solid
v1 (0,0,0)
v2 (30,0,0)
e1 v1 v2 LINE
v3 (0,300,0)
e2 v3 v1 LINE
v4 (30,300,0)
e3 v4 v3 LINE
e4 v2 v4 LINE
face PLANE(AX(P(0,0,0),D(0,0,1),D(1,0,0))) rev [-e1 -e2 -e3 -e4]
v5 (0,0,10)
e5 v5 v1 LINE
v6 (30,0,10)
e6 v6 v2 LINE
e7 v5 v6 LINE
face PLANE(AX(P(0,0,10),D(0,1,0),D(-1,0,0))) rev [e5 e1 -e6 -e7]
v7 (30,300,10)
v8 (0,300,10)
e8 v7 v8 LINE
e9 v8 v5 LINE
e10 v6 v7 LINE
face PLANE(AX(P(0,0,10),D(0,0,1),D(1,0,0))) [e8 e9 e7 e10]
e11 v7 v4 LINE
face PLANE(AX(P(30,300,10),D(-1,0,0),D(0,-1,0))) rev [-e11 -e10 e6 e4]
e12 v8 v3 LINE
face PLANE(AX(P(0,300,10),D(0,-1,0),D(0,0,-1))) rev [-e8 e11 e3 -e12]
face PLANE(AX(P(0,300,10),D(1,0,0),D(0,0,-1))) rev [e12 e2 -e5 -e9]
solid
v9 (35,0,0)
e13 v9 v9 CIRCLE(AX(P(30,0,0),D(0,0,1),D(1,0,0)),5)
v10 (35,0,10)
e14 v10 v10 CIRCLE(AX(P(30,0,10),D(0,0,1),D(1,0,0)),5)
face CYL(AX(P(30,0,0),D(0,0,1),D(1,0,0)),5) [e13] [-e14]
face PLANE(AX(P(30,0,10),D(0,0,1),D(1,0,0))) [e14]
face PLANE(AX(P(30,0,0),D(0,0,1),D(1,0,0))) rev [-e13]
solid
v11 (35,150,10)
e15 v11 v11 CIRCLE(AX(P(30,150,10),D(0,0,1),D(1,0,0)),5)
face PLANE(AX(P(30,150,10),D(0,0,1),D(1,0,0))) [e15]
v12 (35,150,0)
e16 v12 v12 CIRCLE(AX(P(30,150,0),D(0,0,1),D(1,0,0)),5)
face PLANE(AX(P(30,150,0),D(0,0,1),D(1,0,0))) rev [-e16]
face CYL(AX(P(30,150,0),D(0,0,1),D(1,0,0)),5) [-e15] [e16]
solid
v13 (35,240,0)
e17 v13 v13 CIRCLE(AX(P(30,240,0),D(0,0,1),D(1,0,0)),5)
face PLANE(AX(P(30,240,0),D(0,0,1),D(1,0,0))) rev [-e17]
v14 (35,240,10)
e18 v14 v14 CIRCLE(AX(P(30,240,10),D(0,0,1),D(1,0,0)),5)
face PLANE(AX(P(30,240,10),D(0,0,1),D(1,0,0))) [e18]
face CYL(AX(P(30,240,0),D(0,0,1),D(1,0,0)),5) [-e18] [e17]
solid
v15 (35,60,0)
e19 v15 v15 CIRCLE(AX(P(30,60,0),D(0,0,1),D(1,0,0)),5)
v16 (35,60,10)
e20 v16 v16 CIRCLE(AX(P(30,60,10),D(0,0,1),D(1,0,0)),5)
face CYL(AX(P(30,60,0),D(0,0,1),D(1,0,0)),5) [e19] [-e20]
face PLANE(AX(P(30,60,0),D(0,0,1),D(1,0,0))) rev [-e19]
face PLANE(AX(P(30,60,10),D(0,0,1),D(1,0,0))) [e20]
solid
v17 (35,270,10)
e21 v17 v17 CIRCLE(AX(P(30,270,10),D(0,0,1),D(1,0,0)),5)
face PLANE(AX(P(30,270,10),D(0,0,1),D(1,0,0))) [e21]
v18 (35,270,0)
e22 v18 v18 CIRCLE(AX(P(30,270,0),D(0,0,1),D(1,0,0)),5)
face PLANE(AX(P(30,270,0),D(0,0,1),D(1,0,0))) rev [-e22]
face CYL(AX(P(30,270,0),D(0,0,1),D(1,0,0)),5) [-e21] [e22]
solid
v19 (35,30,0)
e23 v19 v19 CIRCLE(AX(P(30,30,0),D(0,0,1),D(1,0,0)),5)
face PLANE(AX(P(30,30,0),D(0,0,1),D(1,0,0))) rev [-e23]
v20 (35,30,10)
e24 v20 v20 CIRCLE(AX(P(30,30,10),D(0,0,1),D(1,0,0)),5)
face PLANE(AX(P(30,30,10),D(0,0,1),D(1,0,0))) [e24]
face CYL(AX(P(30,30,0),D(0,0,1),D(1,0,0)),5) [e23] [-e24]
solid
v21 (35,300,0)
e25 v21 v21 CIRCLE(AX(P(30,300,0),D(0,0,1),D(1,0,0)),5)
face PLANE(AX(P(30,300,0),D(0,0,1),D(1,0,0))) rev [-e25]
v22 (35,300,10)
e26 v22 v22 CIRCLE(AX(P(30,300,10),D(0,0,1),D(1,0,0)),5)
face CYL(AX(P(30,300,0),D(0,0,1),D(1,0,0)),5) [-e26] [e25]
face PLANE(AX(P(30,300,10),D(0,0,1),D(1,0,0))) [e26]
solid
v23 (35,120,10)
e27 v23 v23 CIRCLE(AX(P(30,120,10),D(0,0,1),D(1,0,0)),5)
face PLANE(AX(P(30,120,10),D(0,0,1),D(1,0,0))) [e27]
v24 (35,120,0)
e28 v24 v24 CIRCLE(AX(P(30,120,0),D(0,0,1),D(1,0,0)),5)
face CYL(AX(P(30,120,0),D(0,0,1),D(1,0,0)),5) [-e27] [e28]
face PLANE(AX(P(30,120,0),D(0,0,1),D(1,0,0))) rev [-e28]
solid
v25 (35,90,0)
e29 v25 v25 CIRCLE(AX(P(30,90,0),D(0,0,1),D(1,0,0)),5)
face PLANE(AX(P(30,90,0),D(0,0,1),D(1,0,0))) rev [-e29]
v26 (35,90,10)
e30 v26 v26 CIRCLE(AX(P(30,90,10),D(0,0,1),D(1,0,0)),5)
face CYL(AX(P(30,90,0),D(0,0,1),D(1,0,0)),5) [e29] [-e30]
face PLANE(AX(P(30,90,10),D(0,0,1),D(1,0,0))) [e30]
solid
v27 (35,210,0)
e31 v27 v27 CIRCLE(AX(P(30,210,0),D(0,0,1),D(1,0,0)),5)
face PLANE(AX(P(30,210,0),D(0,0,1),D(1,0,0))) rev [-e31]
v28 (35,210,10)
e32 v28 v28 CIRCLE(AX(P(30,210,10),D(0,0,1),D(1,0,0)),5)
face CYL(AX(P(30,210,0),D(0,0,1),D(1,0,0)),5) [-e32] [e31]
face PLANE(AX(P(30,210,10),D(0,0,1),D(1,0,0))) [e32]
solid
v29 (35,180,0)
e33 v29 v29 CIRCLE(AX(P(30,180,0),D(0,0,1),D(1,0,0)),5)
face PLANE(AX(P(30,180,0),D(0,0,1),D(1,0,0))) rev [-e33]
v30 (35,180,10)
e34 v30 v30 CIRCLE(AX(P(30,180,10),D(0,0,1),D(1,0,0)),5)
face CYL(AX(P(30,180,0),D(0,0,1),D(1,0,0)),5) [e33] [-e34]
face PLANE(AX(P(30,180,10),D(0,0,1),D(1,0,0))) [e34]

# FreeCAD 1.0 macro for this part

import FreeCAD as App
import Part
import Sketcher
from FreeCAD import Vector
Q = App.Units.Quantity


def add_polygon(sketch, points):
    """Adds a closed chain of lines whose ends are joined by coincident constraints."""
    first, n = sketch.GeometryCount, len(points)
    for a, b in zip(points, points[1:] + points[:1]):
        sketch.addGeometry(Part.LineSegment(App.Vector(*a, 0), App.Vector(*b, 0)), False)
    for i in range(n):
        sketch.addConstraint(Sketcher.Constraint("Coincident", first + i, 2, first + (i + 1) % n, 1))

doc = App.newDocument("Part")
body = doc.addObject("PartDesign::Body", "Body")

sketch1 = body.newObject("Sketcher::SketchObject", "Sketch")
sketch1.AttachmentSupport = (doc.getObject("XY_Plane"), [""])
sketch1.MapMode = "FlatFace"
add_polygon(sketch1, [(0, 300), (0, 0), (30, 0), (30, 300)])
sketch1.addConstraint([
    Sketcher.Constraint("Vertical", 0),
    Sketcher.Constraint("Horizontal", 1),
    Sketcher.Constraint("Vertical", 2),
    Sketcher.Constraint("Horizontal", 3),
    Sketcher.Constraint("Coincident", 0, 2, -1, 1),
    Sketcher.Constraint("DistanceX", 1, 1, 1, 2, Q("30 mm")),
    Sketcher.Constraint("DistanceY", 0, 2, 0, 1, Q("300 mm")),
])
pad1 = body.newObject("PartDesign::Pad", "Pad")
pad1.Profile = sketch1
pad1.Length = 10
body2 = doc.addObject("PartDesign::Body", "Body001")

sketch2 = body2.newObject("Sketcher::SketchObject", "Sketch001")
sketch2.AttachmentSupport = (doc.getObject("XY_Plane001"), [""])
sketch2.MapMode = "FlatFace"
sketch2.AttachmentOffset = App.Placement(Vector(0, 0, 10), App.Rotation())
sketch2.addGeometry(Part.Circle(Vector(30, 300, 0), Vector(0, 0, 1), 5), False)
sketch2.addConstraint([
    Sketcher.Constraint("Diameter", 0, Q("10 mm")),
    Sketcher.Constraint("DistanceX", -1, 1, 0, 3, Q("30 mm")),
    Sketcher.Constraint("DistanceY", -1, 1, 0, 3, Q("300 mm")),
])
pad2 = body2.newObject("PartDesign::Pad", "Pad001")
pad2.Profile = sketch2
pad2.Length = 10
pad2.Reversed = True
body3 = doc.addObject("PartDesign::Body", "Body002")

sketch3 = body3.newObject("Sketcher::SketchObject", "Sketch002")
sketch3.AttachmentSupport = (doc.getObject("XY_Plane002"), [""])
sketch3.MapMode = "FlatFace"
sketch3.AttachmentOffset = App.Placement(Vector(0, 0, 10), App.Rotation())
sketch3.addGeometry(Part.Circle(Vector(30, 270, 0), Vector(0, 0, 1), 5), False)
sketch3.addConstraint([
    Sketcher.Constraint("Diameter", 0, Q("10 mm")),
    Sketcher.Constraint("DistanceX", -1, 1, 0, 3, Q("30 mm")),
    Sketcher.Constraint("DistanceY", -1, 1, 0, 3, Q("270 mm")),
])
pad3 = body3.newObject("PartDesign::Pad", "Pad002")
pad3.Profile = sketch3
pad3.Length = 10
pad3.Reversed = True
body4 = doc.addObject("PartDesign::Body", "Body003")

sketch4 = body4.newObject("Sketcher::SketchObject", "Sketch003")
sketch4.AttachmentSupport = (doc.getObject("XY_Plane003"), [""])
sketch4.MapMode = "FlatFace"
sketch4.AttachmentOffset = App.Placement(Vector(0, 0, 10), App.Rotation())
sketch4.addGeometry(Part.Circle(Vector(30, 240, 0), Vector(0, 0, 1), 5), False)
sketch4.addConstraint([
    Sketcher.Constraint("Diameter", 0, Q("10 mm")),
    Sketcher.Constraint("DistanceX", -1, 1, 0, 3, Q("30 mm")),
    Sketcher.Constraint("DistanceY", -1, 1, 0, 3, Q("240 mm")),
])
pad4 = body4.newObject("PartDesign::Pad", "Pad003")
pad4.Profile = sketch4
pad4.Length = 10
pad4.Reversed = True
body5 = doc.addObject("PartDesign::Body", "Body004")

sketch5 = body5.newObject("Sketcher::SketchObject", "Sketch004")
sketch5.AttachmentSupport = (doc.getObject("XY_Plane004"), [""])
sketch5.MapMode = "FlatFace"
sketch5.AttachmentOffset = App.Placement(Vector(0, 0, 10), App.Rotation())
sketch5.addGeometry(Part.Circle(Vector(30, 210, 0), Vector(0, 0, 1), 5), False)
sketch5.addConstraint([
    Sketcher.Constraint("Diameter", 0, Q("10 mm")),
    Sketcher.Constraint("DistanceX", -1, 1, 0, 3, Q("30 mm")),
    Sketcher.Constraint("DistanceY", -1, 1, 0, 3, Q("210 mm")),
])
pad5 = body5.newObject("PartDesign::Pad", "Pad004")
pad5.Profile = sketch5
pad5.Length = 10
pad5.Reversed = True
body6 = doc.addObject("PartDesign::Body", "Body005")

sketch6 = body6.newObject("Sketcher::SketchObject", "Sketch005")
sketch6.AttachmentSupport = (doc.getObject("XY_Plane005"), [""])
sketch6.MapMode = "FlatFace"
sketch6.AttachmentOffset = App.Placement(Vector(0, 0, 10), App.Rotation())
sketch6.addGeometry(Part.Circle(Vector(30, 180, 0), Vector(0, 0, 1), 5), False)
sketch6.addConstraint([
    Sketcher.Constraint("Diameter", 0, Q("10 mm")),
    Sketcher.Constraint("DistanceX", -1, 1, 0, 3, Q("30 mm")),
    Sketcher.Constraint("DistanceY", -1, 1, 0, 3, Q("180 mm")),
])
pad6 = body6.newObject("PartDesign::Pad", "Pad005")
pad6.Profile = sketch6
pad6.Length = 10
pad6.Reversed = True
body7 = doc.addObject("PartDesign::Body", "Body006")

sketch7 = body7.newObject("Sketcher::SketchObject", "Sketch006")
sketch7.AttachmentSupport = (doc.getObject("XY_Plane006"), [""])
sketch7.MapMode = "FlatFace"
sketch7.AttachmentOffset = App.Placement(Vector(0, 0, 10), App.Rotation())
sketch7.addGeometry(Part.Circle(Vector(30, 150, 0), Vector(0, 0, 1), 5), False)
sketch7.addConstraint([
    Sketcher.Constraint("Diameter", 0, Q("10 mm")),
    Sketcher.Constraint("DistanceX", -1, 1, 0, 3, Q("30 mm")),
    Sketcher.Constraint("DistanceY", -1, 1, 0, 3, Q("150 mm")),
])
pad7 = body7.newObject("PartDesign::Pad", "Pad006")
pad7.Profile = sketch7
pad7.Length = 10
pad7.Reversed = True
body8 = doc.addObject("PartDesign::Body", "Body007")

sketch8 = body8.newObject("Sketcher::SketchObject", "Sketch007")
sketch8.AttachmentSupport = (doc.getObject("XY_Plane007"), [""])
sketch8.MapMode = "FlatFace"
sketch8.AttachmentOffset = App.Placement(Vector(0, 0, 10), App.Rotation())
sketch8.addGeometry(Part.Circle(Vector(30, 120, 0), Vector(0, 0, 1), 5), False)
sketch8.addConstraint([
    Sketcher.Constraint("Diameter", 0, Q("10 mm")),
    Sketcher.Constraint("DistanceX", -1, 1, 0, 3, Q("30 mm")),
    Sketcher.Constraint("DistanceY", -1, 1, 0, 3, Q("120 mm")),
])
pad8 = body8.newObject("PartDesign::Pad", "Pad007")
pad8.Profile = sketch8
pad8.Length = 10
pad8.Reversed = True
body9 = doc.addObject("PartDesign::Body", "Body008")

sketch9 = body9.newObject("Sketcher::SketchObject", "Sketch008")
sketch9.AttachmentSupport = (doc.getObject("XY_Plane008"), [""])
sketch9.MapMode = "FlatFace"
sketch9.AttachmentOffset = App.Placement(Vector(0, 0, 10), App.Rotation())
sketch9.addGeometry(Part.Circle(Vector(30, 90, 0), Vector(0, 0, 1), 5), False)
sketch9.addConstraint([
    Sketcher.Constraint("Diameter", 0, Q("10 mm")),
    Sketcher.Constraint("DistanceX", -1, 1, 0, 3, Q("30 mm")),
    Sketcher.Constraint("DistanceY", -1, 1, 0, 3, Q("90 mm")),
])
pad9 = body9.newObject("PartDesign::Pad", "Pad008")
pad9.Profile = sketch9
pad9.Length = 10
pad9.Reversed = True
body10 = doc.addObject("PartDesign::Body", "Body009")

sketch10 = body10.newObject("Sketcher::SketchObject", "Sketch009")
sketch10.AttachmentSupport = (doc.getObject("XY_Plane009"), [""])
sketch10.MapMode = "FlatFace"
sketch10.AttachmentOffset = App.Placement(Vector(0, 0, 10), App.Rotation())
sketch10.addGeometry(Part.Circle(Vector(30, 60, 0), Vector(0, 0, 1), 5), False)
sketch10.addConstraint([
    Sketcher.Constraint("Diameter", 0, Q("10 mm")),
    Sketcher.Constraint("DistanceX", -1, 1, 0, 3, Q("30 mm")),
    Sketcher.Constraint("DistanceY", -1, 1, 0, 3, Q("60 mm")),
])
pad10 = body10.newObject("PartDesign::Pad", "Pad009")
pad10.Profile = sketch10
pad10.Length = 10
pad10.Reversed = True
body11 = doc.addObject("PartDesign::Body", "Body010")

sketch11 = body11.newObject("Sketcher::SketchObject", "Sketch010")
sketch11.AttachmentSupport = (doc.getObject("XY_Plane010"), [""])
sketch11.MapMode = "FlatFace"
sketch11.AttachmentOffset = App.Placement(Vector(0, 0, 10), App.Rotation())
sketch11.addGeometry(Part.Circle(Vector(30, 30, 0), Vector(0, 0, 1), 5), False)
sketch11.addConstraint([
    Sketcher.Constraint("Diameter", 0, Q("10 mm")),
    Sketcher.Constraint("DistanceX", -1, 1, 0, 3, Q("30 mm")),
    Sketcher.Constraint("DistanceY", -1, 1, 0, 3, Q("30 mm")),
])
pad11 = body11.newObject("PartDesign::Pad", "Pad010")
pad11.Profile = sketch11
pad11.Length = 10
pad11.Reversed = True
body12 = doc.addObject("PartDesign::Body", "Body011")

sketch12 = body12.newObject("Sketcher::SketchObject", "Sketch011")
sketch12.AttachmentSupport = (doc.getObject("XY_Plane011"), [""])
sketch12.MapMode = "FlatFace"
sketch12.AttachmentOffset = App.Placement(Vector(0, 0, 10), App.Rotation())
sketch12.addGeometry(Part.Circle(Vector(30, 0, 0), Vector(0, 0, 1), 5), False)
sketch12.addConstraint([
    Sketcher.Constraint("PointOnObject", 0, 3, -1),
    Sketcher.Constraint("Diameter", 0, Q("10 mm")),
    Sketcher.Constraint("DistanceX", -1, 1, 0, 3, Q("30 mm")),
])
pad12 = body12.newObject("PartDesign::Pad", "Pad011")
pad12.Profile = sketch12
pad12.Length = 10
pad12.Reversed = True

doc.recompute()
